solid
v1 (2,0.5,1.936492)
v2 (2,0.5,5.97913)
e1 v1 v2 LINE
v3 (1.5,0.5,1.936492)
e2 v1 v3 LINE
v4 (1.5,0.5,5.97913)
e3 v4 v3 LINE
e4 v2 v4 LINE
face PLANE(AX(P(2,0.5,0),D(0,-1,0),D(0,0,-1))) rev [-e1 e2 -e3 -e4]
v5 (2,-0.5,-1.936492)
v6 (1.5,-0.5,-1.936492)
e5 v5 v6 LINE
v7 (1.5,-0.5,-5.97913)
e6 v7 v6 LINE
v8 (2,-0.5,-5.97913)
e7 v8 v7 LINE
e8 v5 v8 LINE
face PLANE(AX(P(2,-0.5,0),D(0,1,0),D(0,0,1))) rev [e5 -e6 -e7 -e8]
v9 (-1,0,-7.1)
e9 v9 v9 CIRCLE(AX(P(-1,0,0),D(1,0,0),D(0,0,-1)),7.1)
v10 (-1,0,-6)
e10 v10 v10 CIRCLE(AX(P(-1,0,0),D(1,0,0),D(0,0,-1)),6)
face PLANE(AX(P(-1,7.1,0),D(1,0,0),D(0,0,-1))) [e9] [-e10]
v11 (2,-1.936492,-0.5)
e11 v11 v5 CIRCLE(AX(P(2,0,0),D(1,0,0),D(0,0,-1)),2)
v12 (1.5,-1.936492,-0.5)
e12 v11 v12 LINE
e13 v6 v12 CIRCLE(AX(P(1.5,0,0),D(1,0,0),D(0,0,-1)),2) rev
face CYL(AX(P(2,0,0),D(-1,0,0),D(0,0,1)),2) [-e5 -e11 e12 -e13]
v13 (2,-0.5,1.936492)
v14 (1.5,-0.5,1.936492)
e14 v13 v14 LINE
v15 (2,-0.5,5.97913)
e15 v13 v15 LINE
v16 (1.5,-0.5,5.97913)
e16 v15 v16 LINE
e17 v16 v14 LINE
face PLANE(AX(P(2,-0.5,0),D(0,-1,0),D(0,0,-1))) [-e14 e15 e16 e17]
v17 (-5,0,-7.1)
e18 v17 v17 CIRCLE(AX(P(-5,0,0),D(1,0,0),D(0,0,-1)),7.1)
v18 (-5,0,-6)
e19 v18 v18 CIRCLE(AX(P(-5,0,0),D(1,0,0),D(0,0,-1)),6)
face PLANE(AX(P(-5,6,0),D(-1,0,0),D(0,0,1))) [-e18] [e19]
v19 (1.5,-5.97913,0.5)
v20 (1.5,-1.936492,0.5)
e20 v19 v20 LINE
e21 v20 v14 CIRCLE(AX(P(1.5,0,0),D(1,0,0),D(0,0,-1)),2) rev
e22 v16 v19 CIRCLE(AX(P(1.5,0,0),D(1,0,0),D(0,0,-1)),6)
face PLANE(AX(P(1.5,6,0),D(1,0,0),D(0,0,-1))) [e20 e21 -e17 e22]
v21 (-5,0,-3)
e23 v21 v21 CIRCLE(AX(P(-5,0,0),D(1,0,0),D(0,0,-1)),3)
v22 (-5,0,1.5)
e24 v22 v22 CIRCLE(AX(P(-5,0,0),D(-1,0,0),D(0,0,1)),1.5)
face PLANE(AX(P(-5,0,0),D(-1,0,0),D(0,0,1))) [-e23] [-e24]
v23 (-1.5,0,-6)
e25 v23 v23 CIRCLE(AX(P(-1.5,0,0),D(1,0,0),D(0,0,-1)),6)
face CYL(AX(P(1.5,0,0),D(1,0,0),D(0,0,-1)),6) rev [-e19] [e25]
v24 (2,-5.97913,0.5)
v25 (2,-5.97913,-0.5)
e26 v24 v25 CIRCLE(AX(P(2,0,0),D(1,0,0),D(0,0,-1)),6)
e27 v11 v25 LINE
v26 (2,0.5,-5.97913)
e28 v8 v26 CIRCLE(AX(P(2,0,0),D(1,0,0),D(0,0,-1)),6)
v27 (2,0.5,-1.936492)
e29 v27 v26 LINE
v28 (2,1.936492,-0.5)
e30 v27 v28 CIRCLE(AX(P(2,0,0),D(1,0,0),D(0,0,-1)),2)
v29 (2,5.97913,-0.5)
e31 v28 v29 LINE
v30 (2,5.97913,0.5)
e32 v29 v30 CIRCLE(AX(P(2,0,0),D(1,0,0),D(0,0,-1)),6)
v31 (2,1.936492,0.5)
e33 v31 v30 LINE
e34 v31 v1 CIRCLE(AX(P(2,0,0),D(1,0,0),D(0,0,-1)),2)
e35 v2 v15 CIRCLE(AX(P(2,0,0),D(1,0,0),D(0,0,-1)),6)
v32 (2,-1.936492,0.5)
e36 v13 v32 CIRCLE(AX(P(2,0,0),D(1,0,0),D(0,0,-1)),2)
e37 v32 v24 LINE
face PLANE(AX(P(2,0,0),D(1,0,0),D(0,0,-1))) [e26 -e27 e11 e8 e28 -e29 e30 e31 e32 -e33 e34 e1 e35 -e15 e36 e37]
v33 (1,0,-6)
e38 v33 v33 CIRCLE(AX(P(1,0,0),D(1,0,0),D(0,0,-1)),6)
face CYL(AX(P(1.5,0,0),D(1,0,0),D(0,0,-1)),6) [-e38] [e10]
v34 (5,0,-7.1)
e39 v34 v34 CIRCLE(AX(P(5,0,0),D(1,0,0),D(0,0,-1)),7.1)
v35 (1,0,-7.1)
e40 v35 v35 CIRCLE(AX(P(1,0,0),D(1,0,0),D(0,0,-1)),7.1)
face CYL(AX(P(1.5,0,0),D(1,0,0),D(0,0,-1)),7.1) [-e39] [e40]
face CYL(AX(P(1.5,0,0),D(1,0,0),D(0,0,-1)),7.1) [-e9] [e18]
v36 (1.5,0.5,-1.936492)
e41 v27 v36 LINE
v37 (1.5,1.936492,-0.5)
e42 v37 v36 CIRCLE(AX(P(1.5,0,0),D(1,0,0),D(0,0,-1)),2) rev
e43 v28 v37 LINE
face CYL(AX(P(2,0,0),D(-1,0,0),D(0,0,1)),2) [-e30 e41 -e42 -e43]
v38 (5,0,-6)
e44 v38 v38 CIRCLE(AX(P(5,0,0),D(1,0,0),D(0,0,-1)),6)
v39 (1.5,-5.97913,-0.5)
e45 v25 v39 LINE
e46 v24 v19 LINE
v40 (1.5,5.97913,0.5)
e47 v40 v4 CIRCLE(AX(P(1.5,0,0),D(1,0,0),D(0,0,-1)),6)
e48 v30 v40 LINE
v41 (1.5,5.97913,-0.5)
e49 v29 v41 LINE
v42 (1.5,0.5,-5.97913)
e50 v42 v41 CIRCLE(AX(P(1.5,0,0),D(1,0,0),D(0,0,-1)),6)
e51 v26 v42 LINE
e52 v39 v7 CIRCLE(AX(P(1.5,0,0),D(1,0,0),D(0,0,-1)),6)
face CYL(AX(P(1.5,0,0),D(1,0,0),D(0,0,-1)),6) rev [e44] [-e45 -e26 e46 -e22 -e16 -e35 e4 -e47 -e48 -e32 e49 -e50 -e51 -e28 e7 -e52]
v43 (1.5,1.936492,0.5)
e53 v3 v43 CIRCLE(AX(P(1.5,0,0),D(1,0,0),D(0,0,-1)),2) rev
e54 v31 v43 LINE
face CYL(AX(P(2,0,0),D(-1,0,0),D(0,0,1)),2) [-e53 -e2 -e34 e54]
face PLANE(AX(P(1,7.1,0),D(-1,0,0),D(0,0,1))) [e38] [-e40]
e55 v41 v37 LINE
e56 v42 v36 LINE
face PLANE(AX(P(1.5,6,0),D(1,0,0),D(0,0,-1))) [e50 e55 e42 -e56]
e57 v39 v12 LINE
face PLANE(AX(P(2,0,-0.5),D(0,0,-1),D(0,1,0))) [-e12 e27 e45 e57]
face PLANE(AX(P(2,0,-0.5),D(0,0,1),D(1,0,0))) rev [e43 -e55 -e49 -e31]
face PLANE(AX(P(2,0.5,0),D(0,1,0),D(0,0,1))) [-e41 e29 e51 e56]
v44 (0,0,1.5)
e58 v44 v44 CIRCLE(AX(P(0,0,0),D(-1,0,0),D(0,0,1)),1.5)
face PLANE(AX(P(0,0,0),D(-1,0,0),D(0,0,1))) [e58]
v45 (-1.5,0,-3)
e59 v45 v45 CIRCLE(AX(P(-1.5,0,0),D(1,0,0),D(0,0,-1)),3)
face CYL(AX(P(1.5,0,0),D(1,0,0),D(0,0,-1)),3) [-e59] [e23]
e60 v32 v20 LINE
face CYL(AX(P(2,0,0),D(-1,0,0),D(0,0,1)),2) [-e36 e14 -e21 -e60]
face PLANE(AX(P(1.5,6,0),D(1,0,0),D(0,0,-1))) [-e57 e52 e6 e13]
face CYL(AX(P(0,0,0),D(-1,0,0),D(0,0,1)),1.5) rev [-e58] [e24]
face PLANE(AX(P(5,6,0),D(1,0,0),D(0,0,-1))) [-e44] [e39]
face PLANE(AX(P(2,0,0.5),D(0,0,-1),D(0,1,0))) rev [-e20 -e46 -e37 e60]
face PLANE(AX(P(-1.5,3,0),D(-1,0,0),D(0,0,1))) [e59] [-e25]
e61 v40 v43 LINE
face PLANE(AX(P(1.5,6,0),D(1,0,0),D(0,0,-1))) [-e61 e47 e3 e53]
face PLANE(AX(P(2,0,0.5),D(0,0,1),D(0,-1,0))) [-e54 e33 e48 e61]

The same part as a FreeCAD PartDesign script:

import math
import FreeCAD as App
import Part
import Sketcher

V = App.Vector
Q = App.Units.Quantity


def add_polygon(sketch, points):
    """Adds a closed chain of lines whose ends are joined by coincident constraints."""
    first, n = sketch.GeometryCount, len(points)
    for a, b in zip(points, points[1:] + points[:1]):
        sketch.addGeometry(Part.LineSegment(App.Vector(*a, 0), App.Vector(*b, 0)), False)
    for i in range(n):
        sketch.addConstraint(Sketcher.Constraint("Coincident", first + i, 2, first + (i + 1) % n, 1))

doc = App.newDocument("Part")
body = doc.addObject("PartDesign::Body", "Body")

sketch1 = body.newObject("Sketcher::SketchObject", "Sketch")
sketch1.AttachmentSupport = (doc.getObject("XY_Plane"), [""])
sketch1.MapMode = "FlatFace"
add_polygon(sketch1, [(-5, 0), (1.5, 0), (1.5, 6), (5, 6), (5, 7.1), (1, 7.1), (1, 6), (-1, 6), (-1, 7.1), (-5, 7.1), (-5, 6), (-1.5, 6), (-1.5, 3), (-5, 3)])
sketch1.addConstraint([
    Sketcher.Constraint("Horizontal", 0),
    Sketcher.Constraint("Vertical", 1),
    Sketcher.Constraint("Horizontal", 2),
    Sketcher.Constraint("Vertical", 3),
    Sketcher.Constraint("Horizontal", 4),
    Sketcher.Constraint("Vertical", 5),
    Sketcher.Constraint("Horizontal", 6),
    Sketcher.Constraint("Vertical", 7),
    Sketcher.Constraint("Horizontal", 8),
    Sketcher.Constraint("Vertical", 9),
    Sketcher.Constraint("Horizontal", 10),
    Sketcher.Constraint("Vertical", 11),
    Sketcher.Constraint("Horizontal", 12),
    Sketcher.Constraint("Vertical", 13),
    Sketcher.Constraint("Symmetric", 4, 2, 7, 2, -2),
    Sketcher.Constraint("Symmetric", 2, 2, 9, 2, -2),
    Sketcher.Constraint("PointOnObject", 0, 2, -1),
    Sketcher.Constraint("Horizontal", 2, 2, 5, 2),
    Sketcher.Constraint("Vertical", 9, 2, 12, 2),
    Sketcher.Constraint("Equal", 2, 10),
    Sketcher.Constraint("Equal", 11, 13),
    Sketcher.Constraint("DistanceX", 4, 2, 4, 1, Q("4 mm")),
    Sketcher.Constraint("DistanceX", 6, 2, 6, 1, Q("2 mm")),
    Sketcher.Constraint("DistanceY", 1, 1, 1, 2, Q("6 mm")),
    Sketcher.Constraint("DistanceX", 0, 1, 0, 2, Q("6.5 mm")),
    Sketcher.Constraint("DistanceY", 3, 1, 3, 2, Q("1.1 mm")),
])
revolution = body.newObject("PartDesign::Revolution", "Revolution")
revolution.Profile = sketch1
revolution.ReferenceAxis = (sketch1, ["H_Axis"])
revolution.Angle = 360

sketch2 = body.newObject("Sketcher::SketchObject", "Sketch001")
sketch2.AttachmentSupport = (doc.getObject("YZ_Plane"), [""])
sketch2.MapMode = "FlatFace"
sketch2.addGeometry([
    Part.LineSegment(V(1.9, -0.5, 0), V(6, -0.5, 0)),
    Part.ArcOfCircle(Part.Circle(V(0, 0, 0), V(0, 0, 1), 6), math.radians(-4.78), math.radians(4.78)),
    Part.LineSegment(V(6, 0.5, 0), V(1.9, 0.5, 0)),
    Part.ArcOfCircle(Part.Circle(V(0, 0, 0), V(0, 0, 1), 2), math.radians(14), math.radians(76)),
    Part.LineSegment(V(0.5, 1.9, 0), V(0.5, 6, 0)),
    Part.ArcOfCircle(Part.Circle(V(0, 0, 0), V(0, 0, 1), 6), math.radians(85.22), math.radians(94.78)),
    Part.LineSegment(V(-0.5, 6, 0), V(-0.5, 1.9, 0)),
    Part.ArcOfCircle(Part.Circle(V(0, 0, 0), V(0, 0, 1), 2), math.radians(104), math.radians(166)),
    Part.LineSegment(V(-1.9, 0.5, 0), V(-6, 0.5, 0)),
    Part.ArcOfCircle(Part.Circle(V(0, 0, 0), V(0, 0, 1), 6), math.radians(175.22), math.radians(184.78)),
    Part.LineSegment(V(-6, -0.5, 0), V(-1.9, -0.5, 0)),
    Part.ArcOfCircle(Part.Circle(V(0, 0, 0), V(0, 0, 1), 2), math.radians(-166), math.radians(-104)),
    Part.LineSegment(V(-0.5, -1.9, 0), V(-0.5, -6, 0)),
    Part.ArcOfCircle(Part.Circle(V(0, 0, 0), V(0, 0, 1), 6), math.radians(-94.78), math.radians(-85.22)),
    Part.LineSegment(V(0.5, -6, 0), V(0.5, -1.9, 0)),
    Part.ArcOfCircle(Part.Circle(V(0, 0, 0), V(0, 0, 1), 2), math.radians(-76), math.radians(-14)),
], False)
sketch2.addConstraint([
    Sketcher.Constraint("Coincident", 0, 2, 1, 1),
    Sketcher.Constraint("Coincident", 1, 2, 2, 1),
    Sketcher.Constraint("Coincident", 2, 2, 3, 1),
    Sketcher.Constraint("Coincident", 3, 2, 4, 1),
    Sketcher.Constraint("Coincident", 4, 2, 5, 1),
    Sketcher.Constraint("Coincident", 5, 2, 6, 1),
    Sketcher.Constraint("Coincident", 6, 2, 7, 1),
    Sketcher.Constraint("Coincident", 7, 2, 8, 1),
    Sketcher.Constraint("Coincident", 8, 2, 9, 1),
    Sketcher.Constraint("Coincident", 9, 2, 10, 1),
    Sketcher.Constraint("Coincident", 10, 2, 11, 1),
    Sketcher.Constraint("Coincident", 11, 2, 12, 1),
    Sketcher.Constraint("Coincident", 12, 2, 13, 1),
    Sketcher.Constraint("Coincident", 13, 2, 14, 1),
    Sketcher.Constraint("Coincident", 14, 2, 15, 1),
    Sketcher.Constraint("Coincident", 15, 2, 0, 1),
    Sketcher.Constraint("Horizontal", 0),
    Sketcher.Constraint("Horizontal", 2),
    Sketcher.Constraint("Vertical", 4),
    Sketcher.Constraint("Vertical", 6),
    Sketcher.Constraint("Horizontal", 8),
    Sketcher.Constraint("Horizontal", 10),
    Sketcher.Constraint("Vertical", 12),
    Sketcher.Constraint("Vertical", 14),
    Sketcher.Constraint("Coincident", 1, 3, -1, 1),
    Sketcher.Constraint("Coincident", 3, 3, -1, 1),
    Sketcher.Constraint("Coincident", 5, 3, -1, 1),
    Sketcher.Constraint("Coincident", 7, 3, -1, 1),
    Sketcher.Constraint("Coincident", 9, 3, -1, 1),
    Sketcher.Constraint("Coincident", 11, 3, -1, 1),
    Sketcher.Constraint("Coincident", 13, 3, -1, 1),
    Sketcher.Constraint("Coincident", 15, 3, -1, 1),
    Sketcher.Constraint("Equal", 1, 5),
    Sketcher.Constraint("Equal", 3, 7),
    Sketcher.Constraint("Equal", 5, 9),
    Sketcher.Constraint("Equal", 7, 11),
    Sketcher.Constraint("Equal", 9, 13),
    Sketcher.Constraint("Equal", 11, 15),
    Sketcher.Constraint("Horizontal", 4, 2, 5, 2),
    Sketcher.Constraint("Horizontal", 2, 2, 7, 2),
    Sketcher.Constraint("Horizontal", 0, 2, 9, 2),
    Sketcher.Constraint("Horizontal", 12, 2, 13, 2),
    Sketcher.Constraint("Vertical", 0, 2, 1, 2),
    Sketcher.Constraint("Vertical", 6, 2, 11, 2),
    Sketcher.Constraint("Equal", 10, 4),
    Sketcher.Constraint("Radius", 1, Q("6 mm")),
    Sketcher.Constraint("Radius", 3, Q("2 mm")),
    Sketcher.Constraint("DistanceY", 0, 2, 1, 2, Q("1 mm")),
])
pad1 = body.newObject("PartDesign::Pad", "Pad")
pad1.Profile = sketch2
pad1.Length = 2

sketch3 = body.newObject("Sketcher::SketchObject", "Sketch002")
sketch3.AttachmentSupport = (doc.getObject("YZ_Plane"), [""])
sketch3.MapMode = "FlatFace"
sketch3.AttachmentOffset = App.Placement(V(0, 0, -5), App.Rotation())
sketch3.addGeometry(Part.Circle(V(0, 0, 0), V(0, 0, 1), 1.5), False)
sketch3.addConstraint([
    Sketcher.Constraint("Coincident", 0, 3, -1, 1),
    Sketcher.Constraint("Diameter", 0, Q("3 mm")),
])
pocket1 = body.newObject("PartDesign::Pocket", "Pocket")
pocket1.Profile = sketch3
pocket1.Length = 5
pocket1.Reversed = True

doc.recompute()
